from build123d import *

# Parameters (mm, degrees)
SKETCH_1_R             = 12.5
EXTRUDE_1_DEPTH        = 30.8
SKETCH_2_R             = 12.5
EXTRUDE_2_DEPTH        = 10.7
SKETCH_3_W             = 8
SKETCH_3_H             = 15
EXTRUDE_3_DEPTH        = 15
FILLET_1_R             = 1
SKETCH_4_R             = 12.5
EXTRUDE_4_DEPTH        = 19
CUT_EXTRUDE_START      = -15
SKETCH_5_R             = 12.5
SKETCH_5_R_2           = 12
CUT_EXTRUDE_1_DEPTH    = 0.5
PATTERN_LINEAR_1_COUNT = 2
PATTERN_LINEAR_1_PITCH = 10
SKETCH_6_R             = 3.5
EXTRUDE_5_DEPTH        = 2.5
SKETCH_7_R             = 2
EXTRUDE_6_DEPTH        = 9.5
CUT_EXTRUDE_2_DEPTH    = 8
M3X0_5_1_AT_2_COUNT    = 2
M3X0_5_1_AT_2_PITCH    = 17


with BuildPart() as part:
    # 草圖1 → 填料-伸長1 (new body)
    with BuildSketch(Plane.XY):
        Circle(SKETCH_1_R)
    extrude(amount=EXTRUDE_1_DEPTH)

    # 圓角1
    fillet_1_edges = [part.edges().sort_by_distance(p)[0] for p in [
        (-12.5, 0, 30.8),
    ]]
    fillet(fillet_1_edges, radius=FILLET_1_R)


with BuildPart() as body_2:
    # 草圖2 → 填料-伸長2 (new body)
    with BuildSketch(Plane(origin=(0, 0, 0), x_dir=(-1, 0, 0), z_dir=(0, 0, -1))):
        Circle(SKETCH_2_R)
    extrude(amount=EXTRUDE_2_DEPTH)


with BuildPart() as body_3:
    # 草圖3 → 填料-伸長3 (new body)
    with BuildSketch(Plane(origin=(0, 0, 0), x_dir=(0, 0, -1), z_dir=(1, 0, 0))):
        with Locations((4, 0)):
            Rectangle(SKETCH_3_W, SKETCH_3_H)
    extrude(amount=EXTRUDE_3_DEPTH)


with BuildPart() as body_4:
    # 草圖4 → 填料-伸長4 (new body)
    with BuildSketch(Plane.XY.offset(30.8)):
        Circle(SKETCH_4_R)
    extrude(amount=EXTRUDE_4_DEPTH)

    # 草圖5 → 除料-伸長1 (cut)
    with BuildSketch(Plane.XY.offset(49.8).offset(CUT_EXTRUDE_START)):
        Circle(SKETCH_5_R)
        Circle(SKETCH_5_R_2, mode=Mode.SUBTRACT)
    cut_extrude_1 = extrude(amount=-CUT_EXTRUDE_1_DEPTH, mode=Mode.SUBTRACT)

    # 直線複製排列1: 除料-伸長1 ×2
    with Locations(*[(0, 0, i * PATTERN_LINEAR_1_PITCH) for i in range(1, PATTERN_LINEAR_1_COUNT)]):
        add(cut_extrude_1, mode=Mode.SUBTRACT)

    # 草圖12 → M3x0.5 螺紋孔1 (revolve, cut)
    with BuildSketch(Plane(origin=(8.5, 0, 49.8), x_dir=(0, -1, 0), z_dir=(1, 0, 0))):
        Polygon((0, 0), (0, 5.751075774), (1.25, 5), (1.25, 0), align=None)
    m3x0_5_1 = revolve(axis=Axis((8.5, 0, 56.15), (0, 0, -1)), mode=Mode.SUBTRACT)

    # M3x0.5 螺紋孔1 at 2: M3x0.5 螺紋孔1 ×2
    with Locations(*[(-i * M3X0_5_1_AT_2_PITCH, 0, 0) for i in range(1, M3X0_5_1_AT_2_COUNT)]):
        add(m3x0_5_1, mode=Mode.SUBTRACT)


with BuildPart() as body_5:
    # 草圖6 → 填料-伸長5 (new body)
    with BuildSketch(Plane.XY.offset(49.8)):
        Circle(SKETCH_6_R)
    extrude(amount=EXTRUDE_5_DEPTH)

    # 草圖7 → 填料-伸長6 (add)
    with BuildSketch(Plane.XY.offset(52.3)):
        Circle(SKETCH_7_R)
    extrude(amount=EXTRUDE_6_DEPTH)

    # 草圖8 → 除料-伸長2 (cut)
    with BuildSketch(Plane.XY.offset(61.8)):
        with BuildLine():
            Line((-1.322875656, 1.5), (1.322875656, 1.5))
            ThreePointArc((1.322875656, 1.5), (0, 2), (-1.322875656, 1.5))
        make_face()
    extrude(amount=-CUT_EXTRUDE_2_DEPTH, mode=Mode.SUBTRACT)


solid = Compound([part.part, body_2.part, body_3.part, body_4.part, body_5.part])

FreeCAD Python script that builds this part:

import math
import FreeCAD as App
import Part
import Sketcher

V = App.Vector
Q = App.Units.Quantity


def edges_at(feature, points):
    """Names of the edges that pass closest to the given points."""
    edges = feature.Shape.Edges
    near = lambda p: min(range(len(edges)), key=lambda i: edges[i].distToShape(Part.Vertex(*p))[0])
    return sorted({f"Edge{near(p) + 1}" for p in points})


def add_polygon(sketch, points):
    """Adds a closed chain of lines whose ends are joined by coincident constraints."""
    first, n = sketch.GeometryCount, len(points)
    for a, b in zip(points, points[1:] + points[:1]):
        sketch.addGeometry(Part.LineSegment(App.Vector(*a, 0), App.Vector(*b, 0)), False)
    for i in range(n):
        sketch.addConstraint(Sketcher.Constraint("Coincident", first + i, 2, first + (i + 1) % n, 1))

doc = App.newDocument("Part")
body = doc.addObject("PartDesign::Body", "Body")

sketch1 = doc.addObject("Sketcher::SketchObject", "Sketch")
body.addObject(sketch1)
sketch1.AttachmentSupport = (doc.XY_Plane, [""])
sketch1.MapMode = "FlatFace"
sketch1.addGeometry(Part.Circle(V(0, 0, 0), V(0, 0, 1), 12.5), False)
sketch1.addConstraint(Sketcher.Constraint("Coincident", 0, 3, -1, 1))
sketch1.addConstraint(Sketcher.Constraint("Diameter", 0, Q("25 mm")))
pad1 = doc.addObject("PartDesign::Pad", "Pad")
body.addObject(pad1)
pad1.Profile = sketch1
pad1.Length = 30.8
doc.recompute()

fillet = doc.addObject("PartDesign::Fillet", "Fillet")
body.addObject(fillet)
fillet.Base = (pad1, edges_at(pad1, [(-12.5, 0, 30.8)]))
fillet.Radius = 1
body2 = doc.addObject("PartDesign::Body", "Body001")

sketch2 = doc.addObject("Sketcher::SketchObject", "Sketch001")
body2.addObject(sketch2)
sketch2.AttachmentSupport = (doc.getObject("XY_Plane001"), [""])
sketch2.MapMode = "FlatFace"
sketch2.addGeometry(Part.Circle(V(0, 0, 0), V(0, 0, 1), 12.5), False)
sketch2.addConstraint(Sketcher.Constraint("Coincident", 0, 3, -1, 1))
sketch2.addConstraint(Sketcher.Constraint("Diameter", 0, Q("25 mm")))
pad2 = doc.addObject("PartDesign::Pad", "Pad001")
body2.addObject(pad2)
pad2.Profile = sketch2
pad2.Length = 10.7
pad2.Reversed = True
body3 = doc.addObject("PartDesign::Body", "Body002")

sketch3 = doc.addObject("Sketcher::SketchObject", "Sketch002")
body3.addObject(sketch3)
sketch3.AttachmentSupport = (doc.getObject("YZ_Plane002"), [""])
sketch3.MapMode = "FlatFace"
add_polygon(sketch3, [(7.5, 0), (-7.5, 0), (-7.5, -8), (7.5, -8)])
sketch3.addConstraint(Sketcher.Constraint("Horizontal", 0))
sketch3.addConstraint(Sketcher.Constraint("Vertical", 1))
sketch3.addConstraint(Sketcher.Constraint("Horizontal", 2))
sketch3.addConstraint(Sketcher.Constraint("Vertical", 3))
sketch3.addConstraint(Sketcher.Constraint("Symmetric", 0, 2, 3, 2, -1, 1))
sketch3.addConstraint(Sketcher.Constraint("DistanceX", 0, 2, 0, 1, Q("15 mm")))
sketch3.addConstraint(Sketcher.Constraint("DistanceY", 1, 2, 1, 1, Q("8 mm")))
pad3 = doc.addObject("PartDesign::Pad", "Pad002")
body3.addObject(pad3)
pad3.Profile = sketch3
pad3.Length = 15
body4 = doc.addObject("PartDesign::Body", "Body003")

sketch4 = doc.addObject("Sketcher::SketchObject", "Sketch003")
body4.addObject(sketch4)
sketch4.AttachmentSupport = (doc.getObject("XY_Plane003"), [""])
sketch4.MapMode = "FlatFace"
sketch4.AttachmentOffset = App.Placement(V(0, 0, 30.8), App.Rotation())
sketch4.addGeometry(Part.Circle(V(0, 0, 0), V(0, 0, 1), 12.5), False)
sketch4.addConstraint(Sketcher.Constraint("Coincident", 0, 3, -1, 1))
sketch4.addConstraint(Sketcher.Constraint("Diameter", 0, Q("25 mm")))
pad4 = doc.addObject("PartDesign::Pad", "Pad003")
body4.addObject(pad4)
pad4.Profile = sketch4
pad4.Length = 19

sketch5 = doc.addObject("Sketcher::SketchObject", "Sketch004")
body4.addObject(sketch5)
sketch5.AttachmentSupport = (doc.getObject("XY_Plane003"), [""])
sketch5.MapMode = "FlatFace"
sketch5.AttachmentOffset = App.Placement(V(0, 0, 34.8), App.Rotation())
sketch5.addGeometry(Part.Circle(V(0, 0, 0), V(0, 0, 1), 12.5), False)
sketch5.addGeometry(Part.Circle(V(0, 0, 0), V(0, 0, 1), 12), False)
sketch5.addConstraint(Sketcher.Constraint("Coincident", 0, 3, -1, 1))
sketch5.addConstraint(Sketcher.Constraint("Coincident", 1, 3, -1, 1))
sketch5.addConstraint(Sketcher.Constraint("Diameter", 0, Q("25 mm")))
sketch5.addConstraint(Sketcher.Constraint("Diameter", 1, Q("24 mm")))
pocket1 = doc.addObject("PartDesign::Pocket", "Pocket")
body4.addObject(pocket1)
pocket1.Profile = sketch5
pocket1.Length = 0.5
doc.recompute()

linearpattern = doc.addObject("PartDesign::LinearPattern", "LinearPattern")
body4.addObject(linearpattern)
linearpattern.Originals = [pocket1]
linearpattern.Direction = (doc.getObject("Z_Axis003"), [""])
linearpattern.Mode = "offset"
linearpattern.Offset = 10
linearpattern.Occurrences = 2
body4.Tip = linearpattern

sketch6 = doc.addObject("Sketcher::SketchObject", "Sketch005")
body4.addObject(sketch6)
sketch6.AttachmentSupport = (doc.getObject("YZ_Plane003"), [""])
sketch6.MapMode = "FlatFace"
sketch6.AttachmentOffset = App.Placement(V(0, 0, 8.5), App.Rotation())
add_polygon(sketch6, [(0, 44.048924), (0, 49.8), (-1.25, 49.8), (-1.25, 44.8)])
sketch6.addConstraint(Sketcher.Constraint("Vertical", 0))
sketch6.addConstraint(Sketcher.Constraint("Horizontal", 1))
sketch6.addConstraint(Sketcher.Constraint("Vertical", 2))
sketch6.addConstraint(Sketcher.Constraint("PointOnObject", 0, 2, -2))
sketch6.addConstraint(Sketcher.Constraint("DistanceY", 2, 2, 2, 1, Q("5 mm")))
sketch6.addConstraint(Sketcher.Constraint("Angle", 3, Q("-31 deg")))
sketch6.addConstraint(Sketcher.Constraint("DistanceX", 1, 2, 1, 1, Q("1.25 mm")))
sketch6.addConstraint(Sketcher.Constraint("DistanceY", -1, 1, 0, 2, Q("49.8 mm")))
groove = doc.addObject("PartDesign::Groove", "Groove")
body4.addObject(groove)
groove.Profile = sketch6
groove.ReferenceAxis = (sketch6, ["V_Axis"])
groove.Angle = 360
doc.recompute()

linearpattern2 = doc.addObject("PartDesign::LinearPattern", "LinearPattern001")
body4.addObject(linearpattern2)
linearpattern2.Originals = [groove]
linearpattern2.Direction = (doc.getObject("X_Axis003"), [""])
linearpattern2.Mode = "offset"
linearpattern2.Offset = 17
linearpattern2.Occurrences = 2
linearpattern2.Reversed = True
body4.Tip = linearpattern2
body5 = doc.addObject("PartDesign::Body", "Body004")

sketch7 = doc.addObject("Sketcher::SketchObject", "Sketch006")
body5.addObject(sketch7)
sketch7.AttachmentSupport = (doc.getObject("XY_Plane004"), [""])
sketch7.MapMode = "FlatFace"
sketch7.AttachmentOffset = App.Placement(V(0, 0, 49.8), App.Rotation())
sketch7.addGeometry(Part.Circle(V(0, 0, 0), V(0, 0, 1), 3.5), False)
sketch7.addConstraint(Sketcher.Constraint("Coincident", 0, 3, -1, 1))
sketch7.addConstraint(Sketcher.Constraint("Diameter", 0, Q("7 mm")))
pad5 = doc.addObject("PartDesign::Pad", "Pad004")
body5.addObject(pad5)
pad5.Profile = sketch7
pad5.Length = 2.5

sketch8 = doc.addObject("Sketcher::SketchObject", "Sketch007")
body5.addObject(sketch8)
sketch8.AttachmentSupport = (doc.getObject("XY_Plane004"), [""])
sketch8.MapMode = "FlatFace"
sketch8.AttachmentOffset = App.Placement(V(0, 0, 52.3), App.Rotation())
sketch8.addGeometry(Part.Circle(V(0, 0, 0), V(0, 0, 1), 2), False)
sketch8.addConstraint(Sketcher.Constraint("Coincident", 0, 3, -1, 1))
sketch8.addConstraint(Sketcher.Constraint("Diameter", 0, Q("4 mm")))
pad6 = doc.addObject("PartDesign::Pad", "Pad005")
body5.addObject(pad6)
pad6.Profile = sketch8
pad6.Length = 9.5

sketch9 = doc.addObject("Sketcher::SketchObject", "Sketch008")
body5.addObject(sketch9)
sketch9.AttachmentSupport = (doc.getObject("XY_Plane004"), [""])
sketch9.MapMode = "FlatFace"
sketch9.AttachmentOffset = App.Placement(V(0, 0, 61.8), App.Rotation())
sketch9.addGeometry(Part.LineSegment(V(-1.322876, 1.5, 0), V(1.322876, 1.5, 0)), False)
sketch9.addGeometry(Part.ArcOfCircle(Part.Circle(V(0, 0, 0), V(0, 0, 1), 2), math.radians(48.590378), math.radians(131.409622)), False)
sketch9.addConstraint(Sketcher.Constraint("Coincident", 0, 1, 1, 2))
sketch9.addConstraint(Sketcher.Constraint("Coincident", 1, 1, 0, 2))
sketch9.addConstraint(Sketcher.Constraint("Horizontal", 0))
sketch9.addConstraint(Sketcher.Constraint("Coincident", 1, 3, -1, 1))
sketch9.addConstraint(Sketcher.Constraint("Radius", 1, Q("2 mm")))
sketch9.addConstraint(Sketcher.Constraint("DistanceY", -1, 1, 0, 1, Q("1.5 mm")))
pocket2 = doc.addObject("PartDesign::Pocket", "Pocket001")
body5.addObject(pocket2)
pocket2.Profile = sketch9
pocket2.Length = 8

doc.recompute()
